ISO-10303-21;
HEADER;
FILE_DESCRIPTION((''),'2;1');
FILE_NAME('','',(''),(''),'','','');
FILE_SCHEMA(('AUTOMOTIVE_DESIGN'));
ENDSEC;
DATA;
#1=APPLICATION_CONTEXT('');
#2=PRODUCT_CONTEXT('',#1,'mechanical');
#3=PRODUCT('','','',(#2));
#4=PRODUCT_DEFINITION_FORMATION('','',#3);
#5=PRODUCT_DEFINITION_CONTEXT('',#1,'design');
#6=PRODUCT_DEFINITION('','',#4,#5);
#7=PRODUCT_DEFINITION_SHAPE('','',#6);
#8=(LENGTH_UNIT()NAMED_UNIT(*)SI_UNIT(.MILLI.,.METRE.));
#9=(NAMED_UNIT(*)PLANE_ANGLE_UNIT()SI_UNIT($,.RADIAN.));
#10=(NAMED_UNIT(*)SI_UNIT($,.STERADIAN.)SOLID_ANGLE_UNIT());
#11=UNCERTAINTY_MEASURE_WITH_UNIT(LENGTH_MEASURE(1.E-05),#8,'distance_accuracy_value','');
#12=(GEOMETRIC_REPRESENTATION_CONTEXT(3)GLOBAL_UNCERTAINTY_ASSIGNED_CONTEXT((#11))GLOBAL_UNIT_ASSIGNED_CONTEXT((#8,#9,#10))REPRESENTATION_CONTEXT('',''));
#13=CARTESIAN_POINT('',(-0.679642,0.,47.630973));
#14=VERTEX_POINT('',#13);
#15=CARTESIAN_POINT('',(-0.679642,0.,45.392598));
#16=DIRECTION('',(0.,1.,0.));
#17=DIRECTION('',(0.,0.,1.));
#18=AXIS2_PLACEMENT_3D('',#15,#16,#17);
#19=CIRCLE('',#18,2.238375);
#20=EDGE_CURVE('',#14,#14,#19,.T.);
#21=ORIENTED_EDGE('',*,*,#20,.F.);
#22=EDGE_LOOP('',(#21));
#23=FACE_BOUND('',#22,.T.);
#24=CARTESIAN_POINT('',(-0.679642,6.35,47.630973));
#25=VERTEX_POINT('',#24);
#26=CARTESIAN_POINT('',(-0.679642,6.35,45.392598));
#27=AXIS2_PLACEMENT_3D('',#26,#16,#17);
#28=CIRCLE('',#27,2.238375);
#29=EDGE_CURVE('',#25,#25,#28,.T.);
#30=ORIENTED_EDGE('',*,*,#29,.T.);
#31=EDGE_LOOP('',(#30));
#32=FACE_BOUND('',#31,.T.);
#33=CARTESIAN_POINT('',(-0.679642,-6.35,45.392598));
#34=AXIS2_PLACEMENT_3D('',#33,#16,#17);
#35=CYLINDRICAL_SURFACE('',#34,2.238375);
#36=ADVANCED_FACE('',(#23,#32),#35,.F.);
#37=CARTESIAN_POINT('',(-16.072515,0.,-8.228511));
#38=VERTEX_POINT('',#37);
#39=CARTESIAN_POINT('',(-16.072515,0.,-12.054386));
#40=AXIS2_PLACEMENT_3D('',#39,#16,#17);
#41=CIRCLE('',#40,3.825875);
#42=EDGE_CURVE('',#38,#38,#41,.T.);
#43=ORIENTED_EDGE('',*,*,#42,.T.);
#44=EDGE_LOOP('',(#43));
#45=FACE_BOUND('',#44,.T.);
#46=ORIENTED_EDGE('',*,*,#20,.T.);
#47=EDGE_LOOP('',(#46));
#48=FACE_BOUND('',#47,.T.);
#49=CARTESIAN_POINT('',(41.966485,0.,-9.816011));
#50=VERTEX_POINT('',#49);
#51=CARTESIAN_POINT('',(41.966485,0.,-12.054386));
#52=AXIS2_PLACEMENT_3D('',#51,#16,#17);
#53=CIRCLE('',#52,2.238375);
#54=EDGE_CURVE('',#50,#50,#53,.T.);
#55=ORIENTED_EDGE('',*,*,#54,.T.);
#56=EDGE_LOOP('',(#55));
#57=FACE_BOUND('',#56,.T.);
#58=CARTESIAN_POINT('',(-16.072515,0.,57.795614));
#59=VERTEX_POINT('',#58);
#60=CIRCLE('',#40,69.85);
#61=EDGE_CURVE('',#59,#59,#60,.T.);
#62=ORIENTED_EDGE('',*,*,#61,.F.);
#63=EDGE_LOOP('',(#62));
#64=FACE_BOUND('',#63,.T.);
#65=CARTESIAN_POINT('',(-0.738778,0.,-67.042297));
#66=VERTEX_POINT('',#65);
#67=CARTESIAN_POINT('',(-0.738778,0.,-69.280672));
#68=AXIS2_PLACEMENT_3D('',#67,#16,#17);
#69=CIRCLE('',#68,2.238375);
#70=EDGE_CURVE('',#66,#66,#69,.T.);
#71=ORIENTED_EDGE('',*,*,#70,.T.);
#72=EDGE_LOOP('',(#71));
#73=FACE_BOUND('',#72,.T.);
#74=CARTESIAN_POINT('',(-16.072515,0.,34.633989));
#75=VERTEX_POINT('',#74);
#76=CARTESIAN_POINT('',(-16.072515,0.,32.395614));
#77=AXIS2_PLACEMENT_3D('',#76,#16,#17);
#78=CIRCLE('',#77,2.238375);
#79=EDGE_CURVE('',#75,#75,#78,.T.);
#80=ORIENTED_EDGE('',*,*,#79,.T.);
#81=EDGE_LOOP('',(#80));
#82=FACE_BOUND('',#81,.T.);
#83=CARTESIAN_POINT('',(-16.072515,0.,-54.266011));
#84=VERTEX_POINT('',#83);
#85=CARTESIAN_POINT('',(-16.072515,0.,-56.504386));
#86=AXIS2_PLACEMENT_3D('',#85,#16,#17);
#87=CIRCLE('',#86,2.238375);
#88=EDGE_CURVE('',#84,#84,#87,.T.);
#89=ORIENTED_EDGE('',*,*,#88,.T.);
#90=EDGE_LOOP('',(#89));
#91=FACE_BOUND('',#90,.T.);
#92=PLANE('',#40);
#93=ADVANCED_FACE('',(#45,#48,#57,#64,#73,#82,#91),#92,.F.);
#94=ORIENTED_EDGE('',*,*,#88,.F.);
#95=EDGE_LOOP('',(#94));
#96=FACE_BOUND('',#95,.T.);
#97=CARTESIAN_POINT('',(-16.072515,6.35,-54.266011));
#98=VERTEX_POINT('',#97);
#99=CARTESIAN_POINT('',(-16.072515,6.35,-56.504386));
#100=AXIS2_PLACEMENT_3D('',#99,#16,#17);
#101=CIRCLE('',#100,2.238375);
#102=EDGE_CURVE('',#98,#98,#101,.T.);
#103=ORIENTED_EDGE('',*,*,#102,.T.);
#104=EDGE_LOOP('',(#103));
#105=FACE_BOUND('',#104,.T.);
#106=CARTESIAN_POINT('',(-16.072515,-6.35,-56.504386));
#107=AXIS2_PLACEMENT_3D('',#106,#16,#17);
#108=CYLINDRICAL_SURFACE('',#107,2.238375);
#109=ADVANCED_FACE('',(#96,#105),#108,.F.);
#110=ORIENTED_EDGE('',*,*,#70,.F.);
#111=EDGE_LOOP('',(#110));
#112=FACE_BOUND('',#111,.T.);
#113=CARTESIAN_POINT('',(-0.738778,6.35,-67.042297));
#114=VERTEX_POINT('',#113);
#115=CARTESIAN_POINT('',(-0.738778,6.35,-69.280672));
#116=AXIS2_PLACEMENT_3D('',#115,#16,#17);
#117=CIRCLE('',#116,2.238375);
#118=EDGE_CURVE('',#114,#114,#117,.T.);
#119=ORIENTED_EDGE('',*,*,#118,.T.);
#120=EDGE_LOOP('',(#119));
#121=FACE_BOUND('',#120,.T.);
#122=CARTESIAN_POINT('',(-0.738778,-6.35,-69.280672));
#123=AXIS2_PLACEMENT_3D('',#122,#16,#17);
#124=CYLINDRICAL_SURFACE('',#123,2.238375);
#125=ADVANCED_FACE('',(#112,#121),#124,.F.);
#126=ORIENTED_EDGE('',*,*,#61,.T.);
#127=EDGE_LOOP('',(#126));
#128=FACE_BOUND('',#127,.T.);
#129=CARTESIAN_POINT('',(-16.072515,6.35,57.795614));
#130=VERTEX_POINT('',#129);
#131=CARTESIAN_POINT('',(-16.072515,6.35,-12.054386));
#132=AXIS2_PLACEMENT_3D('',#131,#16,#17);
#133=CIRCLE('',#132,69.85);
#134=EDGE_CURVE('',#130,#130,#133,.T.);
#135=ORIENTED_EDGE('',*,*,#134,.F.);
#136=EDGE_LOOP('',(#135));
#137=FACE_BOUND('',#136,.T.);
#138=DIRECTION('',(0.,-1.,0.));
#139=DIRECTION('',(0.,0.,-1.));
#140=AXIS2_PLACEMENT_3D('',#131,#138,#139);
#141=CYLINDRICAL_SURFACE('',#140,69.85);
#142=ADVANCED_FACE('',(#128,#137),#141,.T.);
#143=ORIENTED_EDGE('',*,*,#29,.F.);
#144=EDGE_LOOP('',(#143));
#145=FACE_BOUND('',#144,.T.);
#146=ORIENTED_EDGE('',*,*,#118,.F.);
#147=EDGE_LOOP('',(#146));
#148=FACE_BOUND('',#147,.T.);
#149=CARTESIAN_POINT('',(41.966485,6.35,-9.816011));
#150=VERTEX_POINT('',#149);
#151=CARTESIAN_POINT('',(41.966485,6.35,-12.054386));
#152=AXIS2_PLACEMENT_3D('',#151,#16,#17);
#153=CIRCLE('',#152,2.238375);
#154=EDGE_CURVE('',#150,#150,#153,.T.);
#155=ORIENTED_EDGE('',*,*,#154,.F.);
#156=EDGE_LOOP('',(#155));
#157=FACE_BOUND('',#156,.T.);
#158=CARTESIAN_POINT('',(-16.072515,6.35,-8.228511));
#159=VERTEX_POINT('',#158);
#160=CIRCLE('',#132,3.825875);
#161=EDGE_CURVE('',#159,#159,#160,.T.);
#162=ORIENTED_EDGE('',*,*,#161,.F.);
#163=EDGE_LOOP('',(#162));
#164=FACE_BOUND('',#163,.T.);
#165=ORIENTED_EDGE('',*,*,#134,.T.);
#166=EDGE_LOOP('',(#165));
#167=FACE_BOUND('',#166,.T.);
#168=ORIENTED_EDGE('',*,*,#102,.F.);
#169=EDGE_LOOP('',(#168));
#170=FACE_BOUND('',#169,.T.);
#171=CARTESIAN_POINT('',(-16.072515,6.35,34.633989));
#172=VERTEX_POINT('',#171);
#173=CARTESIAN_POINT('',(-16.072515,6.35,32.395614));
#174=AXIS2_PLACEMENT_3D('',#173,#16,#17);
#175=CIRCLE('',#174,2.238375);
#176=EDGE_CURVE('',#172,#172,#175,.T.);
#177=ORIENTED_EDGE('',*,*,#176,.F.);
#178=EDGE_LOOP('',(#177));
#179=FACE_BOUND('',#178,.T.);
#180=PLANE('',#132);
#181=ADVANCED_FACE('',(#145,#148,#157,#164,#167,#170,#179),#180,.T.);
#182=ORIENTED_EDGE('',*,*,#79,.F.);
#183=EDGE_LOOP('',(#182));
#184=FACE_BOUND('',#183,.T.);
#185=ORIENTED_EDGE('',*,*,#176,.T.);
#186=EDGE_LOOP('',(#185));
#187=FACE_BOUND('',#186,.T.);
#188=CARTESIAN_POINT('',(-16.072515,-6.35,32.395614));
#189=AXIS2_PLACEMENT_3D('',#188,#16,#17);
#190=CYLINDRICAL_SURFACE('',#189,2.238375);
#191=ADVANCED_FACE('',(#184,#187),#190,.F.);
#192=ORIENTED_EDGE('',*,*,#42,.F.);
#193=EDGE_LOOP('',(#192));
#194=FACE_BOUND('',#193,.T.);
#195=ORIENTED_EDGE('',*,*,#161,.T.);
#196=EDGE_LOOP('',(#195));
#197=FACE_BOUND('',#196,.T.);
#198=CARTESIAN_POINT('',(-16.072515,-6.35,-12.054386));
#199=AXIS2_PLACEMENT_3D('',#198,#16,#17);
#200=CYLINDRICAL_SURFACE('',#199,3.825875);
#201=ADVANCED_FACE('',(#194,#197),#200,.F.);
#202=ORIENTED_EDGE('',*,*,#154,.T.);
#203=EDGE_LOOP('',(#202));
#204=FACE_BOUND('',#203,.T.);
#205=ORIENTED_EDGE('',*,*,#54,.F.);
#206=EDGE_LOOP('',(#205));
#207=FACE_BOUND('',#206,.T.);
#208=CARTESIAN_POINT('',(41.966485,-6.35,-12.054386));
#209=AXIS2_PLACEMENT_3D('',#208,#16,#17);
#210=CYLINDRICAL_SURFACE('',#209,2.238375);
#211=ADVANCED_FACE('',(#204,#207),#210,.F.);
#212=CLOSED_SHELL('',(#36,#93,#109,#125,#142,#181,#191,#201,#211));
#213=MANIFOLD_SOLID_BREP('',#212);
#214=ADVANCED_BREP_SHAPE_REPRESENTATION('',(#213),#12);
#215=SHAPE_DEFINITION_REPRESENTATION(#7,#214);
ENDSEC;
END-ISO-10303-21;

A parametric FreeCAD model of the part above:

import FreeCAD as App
import Part
import Sketcher

V = App.Vector
Q = App.Units.Quantity

doc = App.newDocument("Part")
body = doc.addObject("PartDesign::Body", "Body")

# Sketch on XZ plane
sketch1 = body.newObject("Sketcher::SketchObject", "Sketch")
sketch1.AttachmentSupport = (doc.getObject("XZ_Plane"), [""])
sketch1.MapMode = "FlatFace"
sketch1.addGeometry(Part.Circle(V(-16.072515, -12.054386, 0), V(0, 0, 1), 69.85), False)
sketch1.addConstraint(Sketcher.Constraint("Diameter", 0, Q("5.5 in")))
sketch1.addConstraint(Sketcher.Constraint("DistanceX", 0, 3, -1, 1, 16.072515))
sketch1.addConstraint(Sketcher.Constraint("DistanceY", 0, 3, -1, 1, 12.054386))
pad1 = body.newObject("PartDesign::Pad", "Pad")
pad1.Profile = sketch1
pad1.Length = Q("0.25 in")
pad1.Reversed = True

# Sketch on XZ plane
sketch2 = body.newObject("Sketcher::SketchObject", "Sketch001")
sketch2.AttachmentSupport = (doc.getObject("XZ_Plane"), [""])
sketch2.MapMode = "FlatFace"
sketch2.AttachmentOffset = App.Placement(V(0, 0, -0.25 * 25.4), App.Rotation())
sketch2.addGeometry(Part.Circle(V(-0.738778, -69.280672, 0), V(0, 0, 1), 2.238375), False)
sketch2.addGeometry(Part.Circle(V(-16.072515, -56.504386, 0), V(0, 0, 1), 2.238375), False)
sketch2.addGeometry(Part.Circle(V(-16.072515, -12.054386, 0), V(0, 0, 1), 3.825875), False)
sketch2.addGeometry(Part.Circle(V(-16.072515, 32.395614, 0), V(0, 0, 1), 2.238375), False)
sketch2.addGeometry(Part.Circle(V(-0.679642, 45.392598, 0), V(0, 0, 1), 2.238375), False)
sketch2.addGeometry(Part.Circle(V(41.966485, -12.054386, 0), V(0, 0, 1), 2.238375), False)
sketch2.addConstraint(Sketcher.Constraint("Equal", 0, 1))
sketch2.addConstraint(Sketcher.Constraint("Equal", 1, 3))
sketch2.addConstraint(Sketcher.Constraint("Equal", 3, 4))
sketch2.addConstraint(Sketcher.Constraint("Equal", 4, 5))
sketch2.addConstraint(Sketcher.Constraint("Horizontal", 2, 3, 5, 3))
sketch2.addConstraint(Sketcher.Constraint("Vertical", 1, 3, 2, 3))
sketch2.addConstraint(Sketcher.Constraint("Vertical", 2, 3, 3, 3))
sketch2.addConstraint(Sketcher.Constraint("DistanceY", 1, 3, 3, 3, Q("3.5 in")))
sketch2.addConstraint(Sketcher.Constraint("DistanceY", 1, 3, 2, 3, Q("1.75 in")))
sketch2.addConstraint(Sketcher.Constraint("Diameter", 0, 4.47675))
sketch2.addConstraint(Sketcher.Constraint("Diameter", 2, 7.65175))
sketch2.addConstraint(Sketcher.Constraint("DistanceX", 2, 3, 5, 3, Q("2.285 in")))
sketch2.addConstraint(Sketcher.Constraint("DistanceX", 0, 3, -1, 1, 0.738778))
sketch2.addConstraint(Sketcher.Constraint("DistanceY", 0, 3, -1, 1, 69.280672))
sketch2.addConstraint(Sketcher.Constraint("DistanceY", 0, 3, 4, 3, 114.67327))
sketch2.addConstraint(Sketcher.Constraint("DistanceX", 1, 3, -1, 1, 16.072515))
sketch2.addConstraint(Sketcher.Constraint("DistanceY", 1, 3, -1, 1, 56.504386))
sketch2.addConstraint(Sketcher.Constraint("DistanceX", 4, 3, -1, 1, 0.679642))
pocket1 = body.newObject("PartDesign::Pocket", "Pocket")
pocket1.Profile = sketch2
pocket1.Length = Q("0.5 in")
pocket1.Reversed = True

doc.recompute()
